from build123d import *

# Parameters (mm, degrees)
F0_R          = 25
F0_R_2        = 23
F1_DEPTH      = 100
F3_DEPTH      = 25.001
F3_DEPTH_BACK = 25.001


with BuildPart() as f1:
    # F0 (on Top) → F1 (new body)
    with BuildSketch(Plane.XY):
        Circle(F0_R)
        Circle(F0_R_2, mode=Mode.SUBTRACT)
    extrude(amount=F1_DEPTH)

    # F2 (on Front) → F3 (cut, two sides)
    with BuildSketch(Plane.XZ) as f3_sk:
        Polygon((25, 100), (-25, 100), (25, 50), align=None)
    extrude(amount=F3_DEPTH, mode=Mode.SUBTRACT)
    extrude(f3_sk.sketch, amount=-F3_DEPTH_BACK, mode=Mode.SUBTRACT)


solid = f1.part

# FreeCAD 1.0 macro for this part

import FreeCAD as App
import Part
import Sketcher
Q = App.Units.Quantity


def add_polygon(sketch, points):
    """Adds a closed chain of lines whose ends are joined by coincident constraints."""
    first, n = sketch.GeometryCount, len(points)
    for a, b in zip(points, points[1:] + points[:1]):
        sketch.addGeometry(Part.LineSegment(App.Vector(*a, 0), App.Vector(*b, 0)), False)
    for i in range(n):
        sketch.addConstraint(Sketcher.Constraint("Coincident", first + i, 2, first + (i + 1) % n, 1))

doc = App.newDocument("Part")
body = doc.addObject("PartDesign::Body", "Body")

# Sketch on XY plane
sketch1 = body.newObject("Sketcher::SketchObject", "Sketch")
sketch1.AttachmentSupport = (doc.getObject("XY_Plane"), [""])
sketch1.MapMode = "FlatFace"
sketch1.addGeometry([
    Part.Circle(App.Vector(0, 0, 0), App.Vector(0, 0, 1), 25),
    Part.Circle(App.Vector(0, 0, 0), App.Vector(0, 0, 1), 23),
], False)
sketch1.addConstraint([
    Sketcher.Constraint("Coincident", 0, 3, -1, 1),
    Sketcher.Constraint("Coincident", 1, 3, -1, 1),
    Sketcher.Constraint("Diameter", 0, Q("50 mm")),
    Sketcher.Constraint("Diameter", 1, Q("46 mm")),
])
pad1 = body.newObject("PartDesign::Pad", "Pad")
pad1.Profile = sketch1
pad1.Length = 100

# Sketch on XZ plane
sketch2 = body.newObject("Sketcher::SketchObject", "Sketch001")
sketch2.AttachmentSupport = (doc.getObject("XZ_Plane"), [""])
sketch2.MapMode = "FlatFace"
add_polygon(sketch2, [(25, 100), (-25, 100), (25, 50)])  # lines 0-2
sketch2.addConstraint([
    Sketcher.Constraint("Horizontal", 0),
    Sketcher.Constraint("Vertical", 2),
    Sketcher.Constraint("Equal", 0, 2),
    Sketcher.Constraint("DistanceX", 0, 2, 0, 1, Q("50 mm")),
    Sketcher.Constraint("DistanceX", 0, 2, -1, 1, Q("25 mm")),
    Sketcher.Constraint("DistanceY", -1, 1, 0, 2, Q("100 mm")),
])
pocket1 = body.newObject("PartDesign::Pocket", "Pocket")
pocket1.Profile = sketch2
pocket1.Type = "ThroughAll"
pocket1.Midplane = True

doc.recompute()
